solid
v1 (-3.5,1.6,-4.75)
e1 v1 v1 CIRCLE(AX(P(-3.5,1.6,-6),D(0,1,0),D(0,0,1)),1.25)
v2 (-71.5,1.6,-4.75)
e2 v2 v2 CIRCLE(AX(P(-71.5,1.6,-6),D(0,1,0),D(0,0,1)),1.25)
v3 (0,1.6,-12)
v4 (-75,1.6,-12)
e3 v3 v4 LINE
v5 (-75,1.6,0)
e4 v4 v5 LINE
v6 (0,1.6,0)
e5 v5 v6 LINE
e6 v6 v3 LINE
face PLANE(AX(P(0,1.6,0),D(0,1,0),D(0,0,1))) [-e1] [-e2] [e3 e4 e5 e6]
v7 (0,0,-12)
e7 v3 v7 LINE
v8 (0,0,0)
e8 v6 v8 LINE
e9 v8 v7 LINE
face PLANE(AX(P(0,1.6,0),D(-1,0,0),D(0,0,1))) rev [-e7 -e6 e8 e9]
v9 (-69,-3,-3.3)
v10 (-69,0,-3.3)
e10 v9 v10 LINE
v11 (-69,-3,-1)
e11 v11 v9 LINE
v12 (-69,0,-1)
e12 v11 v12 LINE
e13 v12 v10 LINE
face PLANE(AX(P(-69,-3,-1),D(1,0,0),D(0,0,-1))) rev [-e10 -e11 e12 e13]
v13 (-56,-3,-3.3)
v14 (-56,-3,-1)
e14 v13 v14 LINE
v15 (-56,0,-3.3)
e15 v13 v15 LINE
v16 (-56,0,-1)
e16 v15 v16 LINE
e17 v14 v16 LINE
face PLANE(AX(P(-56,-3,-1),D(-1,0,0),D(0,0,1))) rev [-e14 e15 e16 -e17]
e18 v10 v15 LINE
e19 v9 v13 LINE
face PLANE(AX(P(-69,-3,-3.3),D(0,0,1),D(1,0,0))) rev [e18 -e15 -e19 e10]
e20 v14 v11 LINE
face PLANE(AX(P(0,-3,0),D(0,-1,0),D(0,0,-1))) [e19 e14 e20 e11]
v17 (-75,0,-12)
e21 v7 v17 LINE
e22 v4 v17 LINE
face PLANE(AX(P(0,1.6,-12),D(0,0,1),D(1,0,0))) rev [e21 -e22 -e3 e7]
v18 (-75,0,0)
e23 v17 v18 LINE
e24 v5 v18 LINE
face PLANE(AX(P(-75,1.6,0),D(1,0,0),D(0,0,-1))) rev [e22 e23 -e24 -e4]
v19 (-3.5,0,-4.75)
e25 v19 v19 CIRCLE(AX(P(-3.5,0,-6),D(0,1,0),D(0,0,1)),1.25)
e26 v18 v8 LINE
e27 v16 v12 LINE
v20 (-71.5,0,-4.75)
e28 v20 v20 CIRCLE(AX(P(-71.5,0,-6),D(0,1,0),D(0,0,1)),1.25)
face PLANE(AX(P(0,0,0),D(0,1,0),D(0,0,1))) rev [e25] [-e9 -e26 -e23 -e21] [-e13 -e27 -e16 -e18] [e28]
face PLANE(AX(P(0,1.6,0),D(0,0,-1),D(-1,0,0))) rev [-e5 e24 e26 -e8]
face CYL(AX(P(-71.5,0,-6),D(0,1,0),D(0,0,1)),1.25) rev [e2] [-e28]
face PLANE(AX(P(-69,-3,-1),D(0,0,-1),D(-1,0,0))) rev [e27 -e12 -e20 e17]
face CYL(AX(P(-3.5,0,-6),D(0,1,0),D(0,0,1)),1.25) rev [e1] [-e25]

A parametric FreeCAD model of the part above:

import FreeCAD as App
import Part
import Sketcher
Q = App.Units.Quantity


def add_polygon(sketch, points):
    """Adds a closed chain of lines whose ends are joined by coincident constraints."""
    first, n = sketch.GeometryCount, len(points)
    for a, b in zip(points, points[1:] + points[:1]):
        sketch.addGeometry(Part.LineSegment(App.Vector(*a, 0), App.Vector(*b, 0)), False)
    for i in range(n):
        sketch.addConstraint(Sketcher.Constraint("Coincident", first + i, 2, first + (i + 1) % n, 1))

doc = App.newDocument("Part")
params = doc.addObject("Spreadsheet::Sheet", "Params")
for row, (alias, value) in enumerate([
    ("sketch1_width", "75 mm"),
    ("sketch1_height", "12 mm"),
    ("pad1_length", "1.6 mm"),
    ("sketch2_diameter", "2.5 mm"),
    ("sketch3_width", "13 mm"),
    ("sketch3_height", "2.3 mm"),
    ("pad2_length", "3 mm"),
], start=1):
    params.set(f"A{row}", alias)
    params.set(f"B{row}", "=" + value)
    params.setAlias(f"B{row}", alias)

body = doc.addObject("PartDesign::Body", "Body")

sketch1 = body.newObject("Sketcher::SketchObject", "Sketch")
sketch1.AttachmentSupport = (doc.getObject("XZ_Plane"), [""])
sketch1.MapMode = "FlatFace"
add_polygon(sketch1, [(-75, -12), (-75, 0), (0, 0), (0, -12)])
sketch1.addConstraint(Sketcher.Constraint("Vertical", 0))
sketch1.addConstraint(Sketcher.Constraint("Horizontal", 1))
sketch1.addConstraint(Sketcher.Constraint("Vertical", 2))
sketch1.addConstraint(Sketcher.Constraint("Horizontal", 3))
sketch1.addConstraint(Sketcher.Constraint("Coincident", 1, 2, -1, 1))
sketch1.addConstraint(Sketcher.Constraint("DistanceX", 1, 1, 1, 2, Q("75 mm")))
sketch1.addConstraint(Sketcher.Constraint("DistanceY", 0, 1, 0, 2, Q("12 mm")))
sketch1.setExpression("Constraints[9]", "Params.sketch1_width")
sketch1.setExpression("Constraints[10]", "Params.sketch1_height")
pad1 = body.newObject("PartDesign::Pad", "Pad")
pad1.Profile = sketch1
pad1.setExpression("Length", "Params.pad1_length")
pad1.Reversed = True

sketch2 = body.newObject("Sketcher::SketchObject", "Sketch001")
sketch2.AttachmentSupport = (doc.getObject("XZ_Plane"), [""])
sketch2.MapMode = "FlatFace"
sketch2.AttachmentOffset = App.Placement(App.Vector(0, 0, -1.6), App.Rotation())
sketch2.addGeometry(Part.Circle(App.Vector(-71.5, -6, 0), App.Vector(0, 0, 1), 1.2), False)
sketch2.addGeometry(Part.Circle(App.Vector(-3.5, -6, 0), App.Vector(0, 0, 1), 1.2), False)
sketch2.addConstraint(Sketcher.Constraint("Equal", 0, 1))
sketch2.addConstraint(Sketcher.Constraint("Horizontal", 0, 3, 1, 3))
sketch2.addConstraint(Sketcher.Constraint("Diameter", 0, Q("2.5 mm")))
sketch2.addConstraint(Sketcher.Constraint("DistanceY", 0, 3, -1, 1, Q("6 mm")))
sketch2.addConstraint(Sketcher.Constraint("DistanceX", 0, 3, 1, 3, Q("68 mm")))
sketch2.addConstraint(Sketcher.Constraint("DistanceX", 0, 3, -1, 1, Q("71.5 mm")))
sketch2.setExpression("Constraints[2]", "Params.sketch2_diameter")
pocket1 = body.newObject("PartDesign::Pocket", "Pocket")
pocket1.Profile = sketch2
pocket1.Type = "ThroughAll"
pocket1.Reversed = True

sketch3 = body.newObject("Sketcher::SketchObject", "Sketch002")
sketch3.AttachmentSupport = (doc.getObject("XZ_Plane"), [""])
sketch3.MapMode = "FlatFace"
add_polygon(sketch3, [(-69, -1), (-69, -3.3), (-56, -3.3), (-56, -1)])
sketch3.addConstraint(Sketcher.Constraint("Vertical", 0))
sketch3.addConstraint(Sketcher.Constraint("Horizontal", 1))
sketch3.addConstraint(Sketcher.Constraint("Vertical", 2))
sketch3.addConstraint(Sketcher.Constraint("Horizontal", 3))
sketch3.addConstraint(Sketcher.Constraint("DistanceX", 1, 1, 1, 2, Q("13 mm")))
sketch3.addConstraint(Sketcher.Constraint("DistanceY", 0, 2, 0, 1, Q("2.3 mm")))
sketch3.addConstraint(Sketcher.Constraint("DistanceX", 0, 2, -1, 1, Q("69 mm")))
sketch3.addConstraint(Sketcher.Constraint("DistanceY", 2, 2, -1, 1, Q("1 mm")))
sketch3.setExpression("Constraints[8]", "Params.sketch3_width")
sketch3.setExpression("Constraints[9]", "Params.sketch3_height")
pad2 = body.newObject("PartDesign::Pad", "Pad001")
pad2.Profile = sketch3
pad2.setExpression("Length", "Params.pad2_length")

doc.recompute()
